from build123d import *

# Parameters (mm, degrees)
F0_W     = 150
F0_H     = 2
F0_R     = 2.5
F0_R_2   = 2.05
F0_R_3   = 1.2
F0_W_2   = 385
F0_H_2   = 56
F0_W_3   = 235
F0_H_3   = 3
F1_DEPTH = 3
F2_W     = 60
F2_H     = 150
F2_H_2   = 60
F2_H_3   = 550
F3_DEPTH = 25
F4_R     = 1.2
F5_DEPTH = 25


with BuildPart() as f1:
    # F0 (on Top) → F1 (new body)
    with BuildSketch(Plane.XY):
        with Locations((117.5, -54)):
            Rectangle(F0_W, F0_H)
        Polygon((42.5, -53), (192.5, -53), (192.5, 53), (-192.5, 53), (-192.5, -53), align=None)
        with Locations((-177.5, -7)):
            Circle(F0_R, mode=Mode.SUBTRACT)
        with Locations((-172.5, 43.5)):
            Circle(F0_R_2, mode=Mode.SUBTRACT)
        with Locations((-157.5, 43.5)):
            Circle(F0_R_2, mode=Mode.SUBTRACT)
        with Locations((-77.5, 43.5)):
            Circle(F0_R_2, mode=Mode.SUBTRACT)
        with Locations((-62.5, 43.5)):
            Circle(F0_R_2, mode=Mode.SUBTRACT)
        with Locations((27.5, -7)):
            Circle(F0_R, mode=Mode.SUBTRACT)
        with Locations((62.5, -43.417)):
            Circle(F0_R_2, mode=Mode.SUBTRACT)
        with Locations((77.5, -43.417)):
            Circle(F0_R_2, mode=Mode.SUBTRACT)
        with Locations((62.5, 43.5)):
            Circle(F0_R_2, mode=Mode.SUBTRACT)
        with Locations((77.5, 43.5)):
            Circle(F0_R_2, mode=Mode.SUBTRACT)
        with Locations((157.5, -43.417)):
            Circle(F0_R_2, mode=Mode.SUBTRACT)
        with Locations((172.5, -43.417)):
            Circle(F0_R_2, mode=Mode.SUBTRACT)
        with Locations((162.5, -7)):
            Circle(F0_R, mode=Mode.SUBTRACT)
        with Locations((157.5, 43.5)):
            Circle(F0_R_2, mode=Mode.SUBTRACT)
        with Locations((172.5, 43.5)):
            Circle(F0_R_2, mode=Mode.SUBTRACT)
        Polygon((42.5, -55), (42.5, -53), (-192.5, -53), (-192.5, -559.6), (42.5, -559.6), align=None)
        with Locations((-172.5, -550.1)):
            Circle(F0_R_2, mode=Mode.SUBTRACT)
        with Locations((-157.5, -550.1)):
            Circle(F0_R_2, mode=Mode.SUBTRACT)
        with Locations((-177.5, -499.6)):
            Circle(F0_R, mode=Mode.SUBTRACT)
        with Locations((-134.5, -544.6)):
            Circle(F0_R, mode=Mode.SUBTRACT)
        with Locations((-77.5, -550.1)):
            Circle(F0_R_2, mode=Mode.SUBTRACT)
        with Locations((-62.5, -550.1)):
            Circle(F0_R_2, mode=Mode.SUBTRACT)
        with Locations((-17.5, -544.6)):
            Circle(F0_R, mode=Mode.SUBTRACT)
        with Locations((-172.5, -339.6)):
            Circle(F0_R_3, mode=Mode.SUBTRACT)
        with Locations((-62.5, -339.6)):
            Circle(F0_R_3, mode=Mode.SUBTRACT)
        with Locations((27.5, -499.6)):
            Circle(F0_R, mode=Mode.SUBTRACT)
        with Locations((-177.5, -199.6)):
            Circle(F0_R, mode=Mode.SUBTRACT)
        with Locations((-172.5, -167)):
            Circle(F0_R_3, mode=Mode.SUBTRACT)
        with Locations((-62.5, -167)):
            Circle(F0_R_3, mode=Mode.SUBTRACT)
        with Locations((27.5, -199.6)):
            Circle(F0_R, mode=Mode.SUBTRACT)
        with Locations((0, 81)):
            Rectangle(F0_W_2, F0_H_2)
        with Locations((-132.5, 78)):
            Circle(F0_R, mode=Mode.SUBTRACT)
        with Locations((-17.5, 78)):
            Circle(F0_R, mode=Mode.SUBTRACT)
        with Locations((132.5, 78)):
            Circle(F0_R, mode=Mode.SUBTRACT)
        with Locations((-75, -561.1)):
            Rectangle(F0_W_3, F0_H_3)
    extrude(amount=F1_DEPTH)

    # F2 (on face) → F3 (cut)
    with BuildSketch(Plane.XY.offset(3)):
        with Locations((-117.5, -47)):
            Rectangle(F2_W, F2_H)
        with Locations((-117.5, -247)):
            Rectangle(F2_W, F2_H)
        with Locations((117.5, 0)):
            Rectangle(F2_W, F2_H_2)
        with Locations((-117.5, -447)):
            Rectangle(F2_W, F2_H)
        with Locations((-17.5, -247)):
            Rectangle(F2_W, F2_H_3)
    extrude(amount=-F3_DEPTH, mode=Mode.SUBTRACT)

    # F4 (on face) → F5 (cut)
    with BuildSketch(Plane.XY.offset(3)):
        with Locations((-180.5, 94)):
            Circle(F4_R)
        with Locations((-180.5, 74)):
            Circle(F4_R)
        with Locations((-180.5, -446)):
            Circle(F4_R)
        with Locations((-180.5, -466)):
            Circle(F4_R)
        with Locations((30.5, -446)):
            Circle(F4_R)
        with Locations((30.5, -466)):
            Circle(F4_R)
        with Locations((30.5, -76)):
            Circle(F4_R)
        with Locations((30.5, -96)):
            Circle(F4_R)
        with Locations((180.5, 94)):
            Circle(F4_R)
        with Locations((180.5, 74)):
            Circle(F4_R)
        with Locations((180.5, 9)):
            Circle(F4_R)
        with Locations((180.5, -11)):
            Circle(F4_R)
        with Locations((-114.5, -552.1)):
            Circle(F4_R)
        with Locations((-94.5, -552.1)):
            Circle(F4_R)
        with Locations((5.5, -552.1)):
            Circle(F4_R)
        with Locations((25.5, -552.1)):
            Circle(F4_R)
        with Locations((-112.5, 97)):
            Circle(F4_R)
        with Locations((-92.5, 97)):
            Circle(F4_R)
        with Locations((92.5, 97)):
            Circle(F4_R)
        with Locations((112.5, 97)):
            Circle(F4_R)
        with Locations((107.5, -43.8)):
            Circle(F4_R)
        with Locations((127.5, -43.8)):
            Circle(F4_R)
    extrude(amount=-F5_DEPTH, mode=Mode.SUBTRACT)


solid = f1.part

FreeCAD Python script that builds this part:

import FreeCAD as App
import Part
import Sketcher
from FreeCAD import Vector


def add_polygon(sketch, points):
    """Adds a closed chain of lines whose ends are joined by coincident constraints."""
    first, n = sketch.GeometryCount, len(points)
    for a, b in zip(points, points[1:] + points[:1]):
        sketch.addGeometry(Part.LineSegment(App.Vector(*a, 0), App.Vector(*b, 0)), False)
    for i in range(n):
        sketch.addConstraint(Sketcher.Constraint("Coincident", first + i, 2, first + (i + 1) % n, 1))

doc = App.newDocument("Part")
params = doc.addObject("Spreadsheet::Sheet", "Params")
for row, (alias, value) in enumerate([
    ("sketch1_diameter", "5 mm"),
    ("sketch1_diameter2", "4.1 mm"),
    ("sketch1_diameter3", "2.4 mm"),
    ("sketch1_width", "150 mm"),
    ("sketch1_width2", "385 mm"),
    ("pad1_length", "3 mm"),
    ("sketch2_width", "60 mm"),
    ("sketch2_height", "150 mm"),
    ("sketch2_height2", "550 mm"),
    ("pocket1_length", "25 mm"),
    ("sketch3_diameter", "2.4 mm"),
    ("pocket2_length", "25 mm"),
], start=1):
    params.set(f"A{row}", alias)
    params.set(f"B{row}", "=" + value)
    params.setAlias(f"B{row}", alias)

body = doc.addObject("PartDesign::Body", "Body")

# Sketch on XY plane
sketch1 = doc.addObject("Sketcher::SketchObject", "Sketch")
body.addObject(sketch1)
sketch1.AttachmentSupport = (doc.XY_Plane, [""])
sketch1.MapMode = "FlatFace"
add_polygon(sketch1, [(42.5, -55), (192.5, -55), (192.5, 109), (-192.5, 109), (-192.5, -562.6), (42.5, -562.6)])  # lines 0-5
sketch1.addGeometry(Part.Circle(Vector(-172.5, -550.1, 0), Vector(0, 0, 1), 2.05), False)  # 6
sketch1.addGeometry(Part.Circle(Vector(-157.5, -550.1, 0), Vector(0, 0, 1), 2.05), False)  # 7
sketch1.addGeometry(Part.Circle(Vector(-177.5, -499.6, 0), Vector(0, 0, 1), 2.5), False)  # 8
sketch1.addGeometry(Part.Circle(Vector(-134.5, -544.6, 0), Vector(0, 0, 1), 2.5), False)  # 9
sketch1.addGeometry(Part.Circle(Vector(-77.5, -550.1, 0), Vector(0, 0, 1), 2.05), False)  # 10
sketch1.addGeometry(Part.Circle(Vector(-62.5, -550.1, 0), Vector(0, 0, 1), 2.05), False)  # 11
sketch1.addGeometry(Part.Circle(Vector(-17.5, -544.6, 0), Vector(0, 0, 1), 2.5), False)  # 12
sketch1.addGeometry(Part.Circle(Vector(-172.5, -339.6, 0), Vector(0, 0, 1), 1.2), False)  # 13
sketch1.addGeometry(Part.Circle(Vector(-62.5, -339.6, 0), Vector(0, 0, 1), 1.2), False)  # 14
sketch1.addGeometry(Part.Circle(Vector(27.5, -499.6, 0), Vector(0, 0, 1), 2.5), False)  # 15
sketch1.addGeometry(Part.Circle(Vector(-177.5, -199.6, 0), Vector(0, 0, 1), 2.5), False)  # 16
sketch1.addGeometry(Part.Circle(Vector(-172.5, -167, 0), Vector(0, 0, 1), 1.2), False)  # 17
sketch1.addGeometry(Part.Circle(Vector(-62.5, -167, 0), Vector(0, 0, 1), 1.2), False)  # 18
sketch1.addGeometry(Part.Circle(Vector(-177.5, -7, 0), Vector(0, 0, 1), 2.5), False)  # 19
sketch1.addGeometry(Part.Circle(Vector(-172.5, 43.5, 0), Vector(0, 0, 1), 2.05), False)  # 20
sketch1.addGeometry(Part.Circle(Vector(-157.5, 43.5, 0), Vector(0, 0, 1), 2.05), False)  # 21
sketch1.addGeometry(Part.Circle(Vector(-132.5, 78, 0), Vector(0, 0, 1), 2.5), False)  # 22
sketch1.addGeometry(Part.Circle(Vector(-77.5, 43.5, 0), Vector(0, 0, 1), 2.05), False)  # 23
sketch1.addGeometry(Part.Circle(Vector(-62.5, 43.5, 0), Vector(0, 0, 1), 2.05), False)  # 24
sketch1.addGeometry(Part.Circle(Vector(-17.5, 78, 0), Vector(0, 0, 1), 2.5), False)  # 25
sketch1.addGeometry(Part.Circle(Vector(27.5, -199.6, 0), Vector(0, 0, 1), 2.5), False)  # 26
sketch1.addGeometry(Part.Circle(Vector(27.5, -7, 0), Vector(0, 0, 1), 2.5), False)  # 27
sketch1.addGeometry(Part.Circle(Vector(62.5, -43.417, 0), Vector(0, 0, 1), 2.05), False)  # 28
sketch1.addGeometry(Part.Circle(Vector(77.5, -43.417, 0), Vector(0, 0, 1), 2.05), False)  # 29
sketch1.addGeometry(Part.Circle(Vector(62.5, 43.5, 0), Vector(0, 0, 1), 2.05), False)  # 30
sketch1.addGeometry(Part.Circle(Vector(77.5, 43.5, 0), Vector(0, 0, 1), 2.05), False)  # 31
sketch1.addGeometry(Part.Circle(Vector(157.5, -43.417, 0), Vector(0, 0, 1), 2.05), False)  # 32
sketch1.addGeometry(Part.Circle(Vector(172.5, -43.417, 0), Vector(0, 0, 1), 2.05), False)  # 33
sketch1.addGeometry(Part.Circle(Vector(162.5, -7, 0), Vector(0, 0, 1), 2.5), False)  # 34
sketch1.addGeometry(Part.Circle(Vector(132.5, 78, 0), Vector(0, 0, 1), 2.5), False)  # 35
sketch1.addGeometry(Part.Circle(Vector(157.5, 43.5, 0), Vector(0, 0, 1), 2.05), False)  # 36
sketch1.addGeometry(Part.Circle(Vector(172.5, 43.5, 0), Vector(0, 0, 1), 2.05), False)  # 37
sketch1.addConstraint([
    Sketcher.Constraint("Horizontal", 0),
    Sketcher.Constraint("Vertical", 1),
    Sketcher.Constraint("Horizontal", 2),
    Sketcher.Constraint("Vertical", 3),
    Sketcher.Constraint("Horizontal", 4),
    Sketcher.Constraint("Vertical", 5),
    Sketcher.Constraint("Equal", 6, 7),
    Sketcher.Constraint("Equal", 8, 9),
    Sketcher.Constraint("Equal", 7, 10),
    Sketcher.Constraint("Equal", 10, 11),
    Sketcher.Constraint("Equal", 9, 12),
    Sketcher.Constraint("Equal", 13, 14),
    Sketcher.Constraint("Equal", 12, 15),
    Sketcher.Constraint("Equal", 15, 16),
    Sketcher.Constraint("Equal", 14, 17),
    Sketcher.Constraint("Equal", 17, 18),
    Sketcher.Constraint("Equal", 16, 19),
    Sketcher.Constraint("Equal", 11, 20),
    Sketcher.Constraint("Equal", 20, 21),
    Sketcher.Constraint("Equal", 19, 22),
    Sketcher.Constraint("Equal", 21, 23),
    Sketcher.Constraint("Equal", 23, 24),
    Sketcher.Constraint("Equal", 22, 25),
    Sketcher.Constraint("Equal", 25, 26),
    Sketcher.Constraint("Equal", 26, 27),
    Sketcher.Constraint("Equal", 24, 28),
    Sketcher.Constraint("Equal", 28, 29),
    Sketcher.Constraint("Equal", 29, 30),
    Sketcher.Constraint("Equal", 30, 31),
    Sketcher.Constraint("Equal", 31, 32),
    Sketcher.Constraint("Equal", 32, 33),
    Sketcher.Constraint("Equal", 27, 34),
    Sketcher.Constraint("Equal", 34, 35),
    Sketcher.Constraint("Equal", 33, 36),
    Sketcher.Constraint("Equal", 36, 37),
    Sketcher.Constraint("Symmetric", 24, 3, 30, 3, -2),
    Sketcher.Constraint("Symmetric", 23, 3, 31, 3, -2),
    Sketcher.Constraint("Symmetric", 22, 3, 35, 3, -2),
    Sketcher.Constraint("Symmetric", 21, 3, 36, 3, -2),
    Sketcher.Constraint("Symmetric", 20, 3, 37, 3, -2),
    Sketcher.Constraint("Horizontal", 6, 3, 7, 3),
    Sketcher.Constraint("Horizontal", 7, 3, 10, 3),
    Sketcher.Constraint("Horizontal", 10, 3, 11, 3),
    Sketcher.Constraint("Horizontal", 9, 3, 12, 3),
    Sketcher.Constraint("Horizontal", 13, 3, 14, 3),
    Sketcher.Constraint("Horizontal", 8, 3, 15, 3),
    Sketcher.Constraint("Horizontal", 17, 3, 18, 3),
    Sketcher.Constraint("Horizontal", 20, 3, 21, 3),
    Sketcher.Constraint("Horizontal", 21, 3, 23, 3),
    Sketcher.Constraint("Horizontal", 23, 3, 24, 3),
    Sketcher.Constraint("Horizontal", 22, 3, 25, 3),
    Sketcher.Constraint("Horizontal", 16, 3, 26, 3),
    Sketcher.Constraint("Horizontal", 19, 3, 27, 3),
    Sketcher.Constraint("Horizontal", 28, 3, 29, 3),
    Sketcher.Constraint("Horizontal", 29, 3, 32, 3),
    Sketcher.Constraint("Horizontal", 32, 3, 33, 3),
    Sketcher.Constraint("Horizontal", 27, 3, 34, 3),
    Sketcher.Constraint("Vertical", 6, 3, 13, 3),
    Sketcher.Constraint("Vertical", 11, 3, 14, 3),
    Sketcher.Constraint("Vertical", 8, 3, 16, 3),
    Sketcher.Constraint("Vertical", 13, 3, 17, 3),
    Sketcher.Constraint("Vertical", 14, 3, 18, 3),
    Sketcher.Constraint("Vertical", 16, 3, 19, 3),
    Sketcher.Constraint("Vertical", 17, 3, 20, 3),
    Sketcher.Constraint("Vertical", 7, 3, 21, 3),
    Sketcher.Constraint("Vertical", 10, 3, 23, 3),
    Sketcher.Constraint("Vertical", 18, 3, 24, 3),
    Sketcher.Constraint("Vertical", 12, 3, 25, 3),
    Sketcher.Constraint("Vertical", 15, 3, 26, 3),
    Sketcher.Constraint("Vertical", 26, 3, 27, 3),
    Sketcher.Constraint("Vertical", 28, 3, 30, 3),
    Sketcher.Constraint("Vertical", 29, 3, 31, 3),
    Sketcher.Constraint("Vertical", 32, 3, 36, 3),
    Sketcher.Constraint("Vertical", 33, 3, 37, 3),
    Sketcher.Constraint("Diameter", 8, 5.0),
    Sketcher.Constraint("Diameter", 6, 4.1),
    Sketcher.Constraint("Diameter", 13, 2.4),
    Sketcher.Constraint("DistanceX", 0, 1, 0, 2, 150.0),
    Sketcher.Constraint("DistanceX", 2, 2, 2, 1, 385.0),
    Sketcher.Constraint("DistanceY", 1, 1, 1, 2, 164.0),
    Sketcher.Constraint("DistanceY", 3, 2, 3, 1, 671.6),
    Sketcher.Constraint("DistanceY", 17, 3, -1, 1, 167.0),
    Sketcher.Constraint("DistanceY", 19, 3, -1, 1, 7.0),
    Sketcher.Constraint("DistanceY", -1, 1, 22, 3, 78.0),
    Sketcher.Constraint("DistanceY", 0, 2, -1, 1, 55.0),
    Sketcher.Constraint("DistanceX", 6, 3, 7, 3, 15.0),
    Sketcher.Constraint("DistanceX", 8, 3, 6, 3, 5.0),
    Sketcher.Constraint("DistanceX", 7, 3, 9, 3, 23.0),
    Sketcher.Constraint("DistanceY", 9, 3, 8, 3, 45.0),
    Sketcher.Constraint("DistanceX", 9, 3, 10, 3, 57.0),
    Sketcher.Constraint("DistanceX", 10, 3, 11, 3, 15.0),
    Sketcher.Constraint("DistanceX", 11, 3, 12, 3, 45.0),
    Sketcher.Constraint("DistanceY", 8, 3, 13, 3, 160.0),
    Sketcher.Constraint("DistanceX", 12, 3, 15, 3, 45.0),
    Sketcher.Constraint("DistanceY", 13, 3, 16, 3, 140.0),
    Sketcher.Constraint("DistanceX", 21, 3, 22, 3, 25.0),
    Sketcher.Constraint("DistanceX", 27, 3, 28, 3, 35.0),
    Sketcher.Constraint("DistanceX", 32, 3, 34, 3, 5.0),
    Sketcher.Constraint("DistanceX", 33, 3, 0, 2, 20.0),
    Sketcher.Constraint("DistanceY", 3, 2, 9, 3, 18.0),
    Sketcher.Constraint("DistanceY", 6, 3, -1, 1, 550.1),
    Sketcher.Constraint("DistanceY", -1, 1, 20, 3, 43.5),
    Sketcher.Constraint("DistanceY", 28, 3, -1, 1, 43.417),
])
sketch1.setExpression("Constraints[80]", "Params.sketch1_diameter")
sketch1.setExpression("Constraints[81]", "Params.sketch1_diameter2")
sketch1.setExpression("Constraints[82]", "Params.sketch1_diameter3")
sketch1.setExpression("Constraints[83]", "Params.sketch1_width")
sketch1.setExpression("Constraints[84]", "Params.sketch1_width2")
pad1 = doc.addObject("PartDesign::Pad", "Pad")
body.addObject(pad1)
pad1.Profile = sketch1
pad1.setExpression("Length", "Params.pad1_length")

# Sketch on XY plane
sketch2 = doc.addObject("Sketcher::SketchObject", "Sketch001")
body.addObject(sketch2)
sketch2.AttachmentSupport = (doc.XY_Plane, [""])
sketch2.MapMode = "FlatFace"
sketch2.AttachmentOffset = App.Placement(Vector(0, 0, 3), App.Rotation())
add_polygon(sketch2, [(-147.5, 28), (-147.5, -122), (-87.5, -122), (-87.5, 28)])  # lines 0-3
add_polygon(sketch2, [(-147.5, -172), (-147.5, -322), (-87.5, -322), (-87.5, -172)])  # lines 4-7
add_polygon(sketch2, [(87.5, 30), (87.5, -30), (147.5, -30), (147.5, 30)])  # lines 8-11
add_polygon(sketch2, [(-147.5, -372), (-147.5, -522), (-87.5, -522), (-87.5, -372)])  # lines 12-15
add_polygon(sketch2, [(-47.5, 28), (-47.5, -522), (12.5, -522), (12.5, 28)])  # lines 16-19
sketch2.addConstraint([
    Sketcher.Constraint("Vertical", 0),
    Sketcher.Constraint("Horizontal", 1),
    Sketcher.Constraint("Vertical", 2),
    Sketcher.Constraint("Horizontal", 3),
    Sketcher.Constraint("Vertical", 4),
    Sketcher.Constraint("Horizontal", 5),
    Sketcher.Constraint("Vertical", 6),
    Sketcher.Constraint("Horizontal", 7),
    Sketcher.Constraint("Vertical", 8),
    Sketcher.Constraint("Horizontal", 9),
    Sketcher.Constraint("Vertical", 10),
    Sketcher.Constraint("Horizontal", 11),
    Sketcher.Constraint("Vertical", 12),
    Sketcher.Constraint("Horizontal", 13),
    Sketcher.Constraint("Vertical", 14),
    Sketcher.Constraint("Horizontal", 15),
    Sketcher.Constraint("Vertical", 16),
    Sketcher.Constraint("Horizontal", 17),
    Sketcher.Constraint("Vertical", 18),
    Sketcher.Constraint("Horizontal", 19),
    Sketcher.Constraint("Horizontal", 13, 2, 16, 2),
    Sketcher.Constraint("Horizontal", 3, 2, 18, 2),
    Sketcher.Constraint("Vertical", 3, 2, 4, 2),
    Sketcher.Constraint("Vertical", 2, 2, 5, 2),
    Sketcher.Constraint("Vertical", 7, 2, 12, 2),
    Sketcher.Constraint("Vertical", 6, 2, 13, 2),
    Sketcher.Constraint("Equal", 7, 9),
    Sketcher.Constraint("Equal", 15, 17),
    Sketcher.Constraint("Equal", 2, 4),
    Sketcher.Constraint("Equal", 19, 8),
    Sketcher.Constraint("Equal", 6, 12),
    Sketcher.Constraint("DistanceX", 1, 1, 1, 2, 60.0),
    Sketcher.Constraint("DistanceY", 0, 2, 0, 1, 150.0),
    Sketcher.Constraint("DistanceY", 16, 2, 16, 1, 550.0),
    Sketcher.Constraint("DistanceY", 0, 2, -1, 1, 122.0),
    Sketcher.Constraint("DistanceY", 4, 2, -1, 1, 322.0),
    Sketcher.Constraint("DistanceY", 8, 2, -1, 1, 30.0),
    Sketcher.Constraint("DistanceX", 2, 2, 8, 2, 175.0),
    Sketcher.Constraint("DistanceX", 13, 2, 16, 2, 40.0),
    Sketcher.Constraint("DistanceX", 0, 2, -1, 1, 147.5),
])
sketch2.setExpression("Constraints[51]", "Params.sketch2_width")
sketch2.setExpression("Constraints[52]", "Params.sketch2_height")
sketch2.setExpression("Constraints[53]", "Params.sketch2_height2")
pocket1 = doc.addObject("PartDesign::Pocket", "Pocket")
body.addObject(pocket1)
pocket1.Profile = sketch2
pocket1.setExpression("Length", "Params.pocket1_length")

# Sketch on XY plane
sketch3 = doc.addObject("Sketcher::SketchObject", "Sketch002")
body.addObject(sketch3)
sketch3.AttachmentSupport = (doc.XY_Plane, [""])
sketch3.MapMode = "FlatFace"
sketch3.AttachmentOffset = App.Placement(Vector(0, 0, 3), App.Rotation())
sketch3.addGeometry([
    Part.Circle(Vector(-180.5, 94, 0), Vector(0, 0, 1), 1.2),  # 0
    Part.Circle(Vector(-180.5, 74, 0), Vector(0, 0, 1), 1.2),  # 1
    Part.Circle(Vector(-180.5, -446, 0), Vector(0, 0, 1), 1.2),  # 2
    Part.Circle(Vector(-180.5, -466, 0), Vector(0, 0, 1), 1.2),  # 3
    Part.Circle(Vector(30.5, -446, 0), Vector(0, 0, 1), 1.2),  # 4
    Part.Circle(Vector(30.5, -466, 0), Vector(0, 0, 1), 1.2),  # 5
    Part.Circle(Vector(30.5, -76, 0), Vector(0, 0, 1), 1.2),  # 6
    Part.Circle(Vector(30.5, -96, 0), Vector(0, 0, 1), 1.2),  # 7
    Part.Circle(Vector(180.5, 94, 0), Vector(0, 0, 1), 1.2),  # 8
    Part.Circle(Vector(180.5, 74, 0), Vector(0, 0, 1), 1.2),  # 9
    Part.Circle(Vector(180.5, 9, 0), Vector(0, 0, 1), 1.2),  # 10
    Part.Circle(Vector(180.5, -11, 0), Vector(0, 0, 1), 1.2),  # 11
    Part.Circle(Vector(-114.5, -552.1, 0), Vector(0, 0, 1), 1.2),  # 12
    Part.Circle(Vector(-94.5, -552.1, 0), Vector(0, 0, 1), 1.2),  # 13
    Part.Circle(Vector(5.5, -552.1, 0), Vector(0, 0, 1), 1.2),  # 14
    Part.Circle(Vector(25.5, -552.1, 0), Vector(0, 0, 1), 1.2),  # 15
    Part.Circle(Vector(-112.5, 97, 0), Vector(0, 0, 1), 1.2),  # 16
    Part.Circle(Vector(-92.5, 97, 0), Vector(0, 0, 1), 1.2),  # 17
    Part.Circle(Vector(92.5, 97, 0), Vector(0, 0, 1), 1.2),  # 18
    Part.Circle(Vector(112.5, 97, 0), Vector(0, 0, 1), 1.2),  # 19
    Part.Circle(Vector(107.5, -43.8, 0), Vector(0, 0, 1), 1.2),  # 20
    Part.Circle(Vector(127.5, -43.8, 0), Vector(0, 0, 1), 1.2),  # 21
], False)
sketch3.addConstraint([
    Sketcher.Constraint("Equal", 0, 1),
    Sketcher.Constraint("Equal", 1, 2),
    Sketcher.Constraint("Equal", 2, 3),
    Sketcher.Constraint("Equal", 3, 4),
    Sketcher.Constraint("Equal", 4, 5),
    Sketcher.Constraint("Equal", 5, 6),
    Sketcher.Constraint("Equal", 6, 7),
    Sketcher.Constraint("Equal", 7, 8),
    Sketcher.Constraint("Equal", 8, 9),
    Sketcher.Constraint("Equal", 9, 10),
    Sketcher.Constraint("Equal", 10, 11),
    Sketcher.Constraint("Equal", 11, 12),
    Sketcher.Constraint("Equal", 12, 13),
    Sketcher.Constraint("Equal", 13, 14),
    Sketcher.Constraint("Equal", 14, 15),
    Sketcher.Constraint("Equal", 15, 16),
    Sketcher.Constraint("Equal", 16, 17),
    Sketcher.Constraint("Equal", 17, 18),
    Sketcher.Constraint("Equal", 18, 19),
    Sketcher.Constraint("Equal", 19, 20),
    Sketcher.Constraint("Equal", 20, 21),
    Sketcher.Constraint("Symmetric", 0, 3, 8, 3, -2),
    Sketcher.Constraint("Symmetric", 1, 3, 9, 3, -2),
    Sketcher.Constraint("Symmetric", 17, 3, 18, 3, -2),
    Sketcher.Constraint("Symmetric", 16, 3, 19, 3, -2),
    Sketcher.Constraint("Horizontal", 2, 3, 4, 3),
    Sketcher.Constraint("Horizontal", 3, 3, 5, 3),
    Sketcher.Constraint("Horizontal", 12, 3, 13, 3),
    Sketcher.Constraint("Horizontal", 13, 3, 14, 3),
    Sketcher.Constraint("Horizontal", 14, 3, 15, 3),
    Sketcher.Constraint("Horizontal", 16, 3, 17, 3),
    Sketcher.Constraint("Horizontal", 20, 3, 21, 3),
    Sketcher.Constraint("Vertical", 0, 3, 1, 3),
    Sketcher.Constraint("Vertical", 1, 3, 2, 3),
    Sketcher.Constraint("Vertical", 2, 3, 3, 3),
    Sketcher.Constraint("Vertical", 4, 3, 5, 3),
    Sketcher.Constraint("Vertical", 5, 3, 6, 3),
    Sketcher.Constraint("Vertical", 6, 3, 7, 3),
    Sketcher.Constraint("Vertical", 9, 3, 10, 3),
    Sketcher.Constraint("Vertical", 10, 3, 11, 3),
    Sketcher.Constraint("Diameter", 0, 2.4),
    Sketcher.Constraint("DistanceY", -1, 1, 0, 3, 94.0),
    Sketcher.Constraint("DistanceY", -1, 1, 1, 3, 74.0),
    Sketcher.Constraint("DistanceY", 2, 3, -1, 1, 446.0),
    Sketcher.Constraint("DistanceY", 3, 3, -1, 1, 466.0),
    Sketcher.Constraint("DistanceY", 6, 3, -1, 1, 76.0),
    Sketcher.Constraint("DistanceY", 7, 3, -1, 1, 96.0),
    Sketcher.Constraint("DistanceY", -1, 1, 10, 3, 9.0),
    Sketcher.Constraint("DistanceY", 11, 3, -1, 1, 11.0),
    Sketcher.Constraint("DistanceY", -1, 1, 16, 3, 97.0),
    Sketcher.Constraint("DistanceX", 2, 3, 4, 3, 211.0),
    Sketcher.Constraint("DistanceX", 6, 3, 8, 3, 150.0),
    Sketcher.Constraint("DistanceX", 3, 3, 12, 3, 66.0),
    Sketcher.Constraint("DistanceX", 12, 3, 13, 3, 20.0),
    Sketcher.Constraint("DistanceX", 14, 3, 5, 3, 25.0),
    Sketcher.Constraint("DistanceX", 14, 3, 15, 3, 20.0),
    Sketcher.Constraint("DistanceX", 0, 3, 16, 3, 68.0),
    Sketcher.Constraint("DistanceX", 16, 3, 17, 3, 20.0),
    Sketcher.Constraint("DistanceX", 20, 3, 11, 3, 73.0),
    Sketcher.Constraint("DistanceX", 20, 3, 21, 3, 20.0),
    Sketcher.Constraint("DistanceY", 12, 3, -1, 1, 552.1),
    Sketcher.Constraint("DistanceY", 20, 3, -1, 1, 43.8),
])
sketch3.setExpression("Constraints[40]", "Params.sketch3_diameter")
pocket2 = doc.addObject("PartDesign::Pocket", "Pocket001")
body.addObject(pocket2)
pocket2.Profile = sketch3
pocket2.setExpression("Length", "Params.pocket2_length")

doc.recompute()
